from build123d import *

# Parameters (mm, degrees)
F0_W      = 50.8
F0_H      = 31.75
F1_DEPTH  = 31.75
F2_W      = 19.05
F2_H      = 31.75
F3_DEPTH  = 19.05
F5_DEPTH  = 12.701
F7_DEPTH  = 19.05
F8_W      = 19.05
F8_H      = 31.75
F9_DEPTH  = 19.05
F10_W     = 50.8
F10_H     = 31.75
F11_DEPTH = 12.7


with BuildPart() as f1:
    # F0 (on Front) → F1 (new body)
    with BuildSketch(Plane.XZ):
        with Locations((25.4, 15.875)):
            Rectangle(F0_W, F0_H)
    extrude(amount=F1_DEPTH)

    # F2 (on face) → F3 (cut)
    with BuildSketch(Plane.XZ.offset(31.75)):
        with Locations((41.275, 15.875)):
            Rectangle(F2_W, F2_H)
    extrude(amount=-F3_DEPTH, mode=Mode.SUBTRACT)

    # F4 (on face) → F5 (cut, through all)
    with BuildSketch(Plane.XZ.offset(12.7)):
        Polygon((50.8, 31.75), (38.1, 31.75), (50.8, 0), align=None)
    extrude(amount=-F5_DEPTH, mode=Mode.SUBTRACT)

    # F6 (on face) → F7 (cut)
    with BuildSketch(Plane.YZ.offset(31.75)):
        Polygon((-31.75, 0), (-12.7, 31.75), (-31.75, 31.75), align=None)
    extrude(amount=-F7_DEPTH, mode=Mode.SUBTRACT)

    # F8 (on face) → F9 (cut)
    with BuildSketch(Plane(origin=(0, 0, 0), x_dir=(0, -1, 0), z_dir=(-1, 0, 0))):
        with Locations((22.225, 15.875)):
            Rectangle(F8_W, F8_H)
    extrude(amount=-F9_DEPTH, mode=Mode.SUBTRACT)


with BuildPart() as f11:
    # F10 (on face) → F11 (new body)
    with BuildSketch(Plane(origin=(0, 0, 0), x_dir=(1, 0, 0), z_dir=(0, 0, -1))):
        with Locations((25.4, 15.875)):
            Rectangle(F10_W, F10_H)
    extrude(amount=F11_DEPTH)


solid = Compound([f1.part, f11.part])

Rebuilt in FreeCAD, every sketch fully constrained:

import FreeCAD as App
import Part
import Sketcher
Q = App.Units.Quantity


def add_polygon(sketch, points):
    """Adds a closed chain of lines whose ends are joined by coincident constraints."""
    first, n = sketch.GeometryCount, len(points)
    for a, b in zip(points, points[1:] + points[:1]):
        sketch.addGeometry(Part.LineSegment(App.Vector(*a, 0), App.Vector(*b, 0)), False)
    for i in range(n):
        sketch.addConstraint(Sketcher.Constraint("Coincident", first + i, 2, first + (i + 1) % n, 1))

doc = App.newDocument("Part")
body = doc.addObject("PartDesign::Body", "Body")

# Sketch on XZ plane
sketch1 = doc.addObject("Sketcher::SketchObject", "Sketch")
body.addObject(sketch1)
sketch1.AttachmentSupport = (doc.XZ_Plane, [""])
sketch1.MapMode = "FlatFace"
add_polygon(sketch1, [(0, 32), (0, 0), (51, 0), (51, 32)])  # lines 0-3
sketch1.addConstraint([
    Sketcher.Constraint("Vertical", 0),
    Sketcher.Constraint("Horizontal", 1),
    Sketcher.Constraint("Vertical", 2),
    Sketcher.Constraint("Horizontal", 3),
    Sketcher.Constraint("Coincident", 0, 2, -1, 1),
    Sketcher.Constraint("DistanceX", 1, 1, 1, 2, Q("2 in")),
    Sketcher.Constraint("DistanceY", 0, 2, 0, 1, Q("1.25 in")),
])
pad1 = doc.addObject("PartDesign::Pad", "Pad")
body.addObject(pad1)
pad1.Profile = sketch1
pad1.Length = Q("1.25 in")

# Sketch on XZ plane
sketch2 = doc.addObject("Sketcher::SketchObject", "Sketch001")
body.addObject(sketch2)
sketch2.AttachmentSupport = (doc.XZ_Plane, [""])
sketch2.MapMode = "FlatFace"
sketch2.AttachmentOffset = App.Placement(App.Vector(0, 0, 1.25 * 25.4), App.Rotation())
add_polygon(sketch2, [(32, 32), (32, 0), (51, 0), (51, 32)])  # lines 0-3
sketch2.addConstraint([
    Sketcher.Constraint("Vertical", 0),
    Sketcher.Constraint("Horizontal", 1),
    Sketcher.Constraint("Vertical", 2),
    Sketcher.Constraint("Horizontal", 3),
    Sketcher.Constraint("PointOnObject", 0, 2, -1),
    Sketcher.Constraint("DistanceX", -1, 1, 1, 2, Q("2 in")),
    Sketcher.Constraint("DistanceX", 1, 1, 1, 2, Q("0.75 in")),
    Sketcher.Constraint("DistanceY", 0, 2, 0, 1, Q("1.25 in")),
])
pocket1 = doc.addObject("PartDesign::Pocket", "Pocket")
body.addObject(pocket1)
pocket1.Profile = sketch2
pocket1.Length = Q("0.75 in")

# Sketch on XZ plane
sketch3 = doc.addObject("Sketcher::SketchObject", "Sketch002")
body.addObject(sketch3)
sketch3.AttachmentSupport = (doc.XZ_Plane, [""])
sketch3.MapMode = "FlatFace"
sketch3.AttachmentOffset = App.Placement(App.Vector(0, 0, 0.5 * 25.4), App.Rotation())
add_polygon(sketch3, [(51, 32), (38, 32), (51, 0)])  # lines 0-2
sketch3.addConstraint([
    Sketcher.Constraint("Horizontal", 0),
    Sketcher.Constraint("Vertical", 2),
    Sketcher.Constraint("PointOnObject", 1, 2, -1),
    Sketcher.Constraint("DistanceX", 0, 2, 0, 1, Q("0.5 in")),
    Sketcher.Constraint("DistanceX", -1, 1, 1, 2, Q("2 in")),
    Sketcher.Constraint("DistanceY", 2, 1, 2, 2, Q("1.25 in")),
])
pocket2 = doc.addObject("PartDesign::Pocket", "Pocket001")
body.addObject(pocket2)
pocket2.Profile = sketch3
pocket2.Type = "ThroughAll"

# Sketch on YZ plane
sketch4 = doc.addObject("Sketcher::SketchObject", "Sketch003")
body.addObject(sketch4)
sketch4.AttachmentSupport = (doc.YZ_Plane, [""])
sketch4.MapMode = "FlatFace"
sketch4.AttachmentOffset = App.Placement(App.Vector(0, 0, 1.25 * 25.4), App.Rotation())
add_polygon(sketch4, [(-32, 0), (-13, 32), (-32, 32)])  # lines 0-2
sketch4.addConstraint([
    Sketcher.Constraint("Horizontal", 1),
    Sketcher.Constraint("Vertical", 2),
    Sketcher.Constraint("PointOnObject", 2, 2, -1),
    Sketcher.Constraint("DistanceX", 1, 2, 1, 1, Q("0.75 in")),
    Sketcher.Constraint("DistanceY", 2, 2, 2, 1, Q("1.25 in")),
    Sketcher.Constraint("DistanceX", 0, 2, -1, 1, Q("0.5 in")),
])
pocket3 = doc.addObject("PartDesign::Pocket", "Pocket002")
body.addObject(pocket3)
pocket3.Profile = sketch4
pocket3.Length = Q("0.75 in")

# Sketch on YZ plane
sketch5 = doc.addObject("Sketcher::SketchObject", "Sketch004")
body.addObject(sketch5)
sketch5.AttachmentSupport = (doc.YZ_Plane, [""])
sketch5.MapMode = "FlatFace"
add_polygon(sketch5, [(-13, 32), (-13, 0), (-32, 0), (-32, 32)])  # lines 0-3
sketch5.addConstraint([
    Sketcher.Constraint("Vertical", 0),
    Sketcher.Constraint("Horizontal", 1),
    Sketcher.Constraint("Vertical", 2),
    Sketcher.Constraint("Horizontal", 3),
    Sketcher.Constraint("PointOnObject", 0, 2, -1),
    Sketcher.Constraint("DistanceX", 1, 2, 1, 1, Q("0.75 in")),
    Sketcher.Constraint("DistanceY", 0, 2, 0, 1, Q("1.25 in")),
    Sketcher.Constraint("DistanceX", 0, 2, -1, 1, Q("0.5 in")),
])
pocket4 = doc.addObject("PartDesign::Pocket", "Pocket003")
body.addObject(pocket4)
pocket4.Profile = sketch5
pocket4.Length = Q("0.75 in")
pocket4.Reversed = True
body2 = doc.addObject("PartDesign::Body", "Body001")

# Sketch on XY plane
sketch6 = doc.addObject("Sketcher::SketchObject", "Sketch005")
body2.addObject(sketch6)
sketch6.AttachmentSupport = (doc.getObject("XY_Plane001"), [""])
sketch6.MapMode = "FlatFace"
add_polygon(sketch6, [(0, -32), (0, 0), (51, 0), (51, -32)])  # lines 0-3
sketch6.addConstraint([
    Sketcher.Constraint("Vertical", 0),
    Sketcher.Constraint("Horizontal", 1),
    Sketcher.Constraint("Vertical", 2),
    Sketcher.Constraint("Horizontal", 3),
    Sketcher.Constraint("Coincident", 0, 2, -1, 1),
    Sketcher.Constraint("DistanceX", 1, 1, 1, 2, Q("2 in")),
    Sketcher.Constraint("DistanceY", 0, 1, 0, 2, Q("1.25 in")),
])
pad2 = doc.addObject("PartDesign::Pad", "Pad001")
body2.addObject(pad2)
pad2.Profile = sketch6
pad2.Length = Q("0.5 in")
pad2.Reversed = True

doc.recompute()
